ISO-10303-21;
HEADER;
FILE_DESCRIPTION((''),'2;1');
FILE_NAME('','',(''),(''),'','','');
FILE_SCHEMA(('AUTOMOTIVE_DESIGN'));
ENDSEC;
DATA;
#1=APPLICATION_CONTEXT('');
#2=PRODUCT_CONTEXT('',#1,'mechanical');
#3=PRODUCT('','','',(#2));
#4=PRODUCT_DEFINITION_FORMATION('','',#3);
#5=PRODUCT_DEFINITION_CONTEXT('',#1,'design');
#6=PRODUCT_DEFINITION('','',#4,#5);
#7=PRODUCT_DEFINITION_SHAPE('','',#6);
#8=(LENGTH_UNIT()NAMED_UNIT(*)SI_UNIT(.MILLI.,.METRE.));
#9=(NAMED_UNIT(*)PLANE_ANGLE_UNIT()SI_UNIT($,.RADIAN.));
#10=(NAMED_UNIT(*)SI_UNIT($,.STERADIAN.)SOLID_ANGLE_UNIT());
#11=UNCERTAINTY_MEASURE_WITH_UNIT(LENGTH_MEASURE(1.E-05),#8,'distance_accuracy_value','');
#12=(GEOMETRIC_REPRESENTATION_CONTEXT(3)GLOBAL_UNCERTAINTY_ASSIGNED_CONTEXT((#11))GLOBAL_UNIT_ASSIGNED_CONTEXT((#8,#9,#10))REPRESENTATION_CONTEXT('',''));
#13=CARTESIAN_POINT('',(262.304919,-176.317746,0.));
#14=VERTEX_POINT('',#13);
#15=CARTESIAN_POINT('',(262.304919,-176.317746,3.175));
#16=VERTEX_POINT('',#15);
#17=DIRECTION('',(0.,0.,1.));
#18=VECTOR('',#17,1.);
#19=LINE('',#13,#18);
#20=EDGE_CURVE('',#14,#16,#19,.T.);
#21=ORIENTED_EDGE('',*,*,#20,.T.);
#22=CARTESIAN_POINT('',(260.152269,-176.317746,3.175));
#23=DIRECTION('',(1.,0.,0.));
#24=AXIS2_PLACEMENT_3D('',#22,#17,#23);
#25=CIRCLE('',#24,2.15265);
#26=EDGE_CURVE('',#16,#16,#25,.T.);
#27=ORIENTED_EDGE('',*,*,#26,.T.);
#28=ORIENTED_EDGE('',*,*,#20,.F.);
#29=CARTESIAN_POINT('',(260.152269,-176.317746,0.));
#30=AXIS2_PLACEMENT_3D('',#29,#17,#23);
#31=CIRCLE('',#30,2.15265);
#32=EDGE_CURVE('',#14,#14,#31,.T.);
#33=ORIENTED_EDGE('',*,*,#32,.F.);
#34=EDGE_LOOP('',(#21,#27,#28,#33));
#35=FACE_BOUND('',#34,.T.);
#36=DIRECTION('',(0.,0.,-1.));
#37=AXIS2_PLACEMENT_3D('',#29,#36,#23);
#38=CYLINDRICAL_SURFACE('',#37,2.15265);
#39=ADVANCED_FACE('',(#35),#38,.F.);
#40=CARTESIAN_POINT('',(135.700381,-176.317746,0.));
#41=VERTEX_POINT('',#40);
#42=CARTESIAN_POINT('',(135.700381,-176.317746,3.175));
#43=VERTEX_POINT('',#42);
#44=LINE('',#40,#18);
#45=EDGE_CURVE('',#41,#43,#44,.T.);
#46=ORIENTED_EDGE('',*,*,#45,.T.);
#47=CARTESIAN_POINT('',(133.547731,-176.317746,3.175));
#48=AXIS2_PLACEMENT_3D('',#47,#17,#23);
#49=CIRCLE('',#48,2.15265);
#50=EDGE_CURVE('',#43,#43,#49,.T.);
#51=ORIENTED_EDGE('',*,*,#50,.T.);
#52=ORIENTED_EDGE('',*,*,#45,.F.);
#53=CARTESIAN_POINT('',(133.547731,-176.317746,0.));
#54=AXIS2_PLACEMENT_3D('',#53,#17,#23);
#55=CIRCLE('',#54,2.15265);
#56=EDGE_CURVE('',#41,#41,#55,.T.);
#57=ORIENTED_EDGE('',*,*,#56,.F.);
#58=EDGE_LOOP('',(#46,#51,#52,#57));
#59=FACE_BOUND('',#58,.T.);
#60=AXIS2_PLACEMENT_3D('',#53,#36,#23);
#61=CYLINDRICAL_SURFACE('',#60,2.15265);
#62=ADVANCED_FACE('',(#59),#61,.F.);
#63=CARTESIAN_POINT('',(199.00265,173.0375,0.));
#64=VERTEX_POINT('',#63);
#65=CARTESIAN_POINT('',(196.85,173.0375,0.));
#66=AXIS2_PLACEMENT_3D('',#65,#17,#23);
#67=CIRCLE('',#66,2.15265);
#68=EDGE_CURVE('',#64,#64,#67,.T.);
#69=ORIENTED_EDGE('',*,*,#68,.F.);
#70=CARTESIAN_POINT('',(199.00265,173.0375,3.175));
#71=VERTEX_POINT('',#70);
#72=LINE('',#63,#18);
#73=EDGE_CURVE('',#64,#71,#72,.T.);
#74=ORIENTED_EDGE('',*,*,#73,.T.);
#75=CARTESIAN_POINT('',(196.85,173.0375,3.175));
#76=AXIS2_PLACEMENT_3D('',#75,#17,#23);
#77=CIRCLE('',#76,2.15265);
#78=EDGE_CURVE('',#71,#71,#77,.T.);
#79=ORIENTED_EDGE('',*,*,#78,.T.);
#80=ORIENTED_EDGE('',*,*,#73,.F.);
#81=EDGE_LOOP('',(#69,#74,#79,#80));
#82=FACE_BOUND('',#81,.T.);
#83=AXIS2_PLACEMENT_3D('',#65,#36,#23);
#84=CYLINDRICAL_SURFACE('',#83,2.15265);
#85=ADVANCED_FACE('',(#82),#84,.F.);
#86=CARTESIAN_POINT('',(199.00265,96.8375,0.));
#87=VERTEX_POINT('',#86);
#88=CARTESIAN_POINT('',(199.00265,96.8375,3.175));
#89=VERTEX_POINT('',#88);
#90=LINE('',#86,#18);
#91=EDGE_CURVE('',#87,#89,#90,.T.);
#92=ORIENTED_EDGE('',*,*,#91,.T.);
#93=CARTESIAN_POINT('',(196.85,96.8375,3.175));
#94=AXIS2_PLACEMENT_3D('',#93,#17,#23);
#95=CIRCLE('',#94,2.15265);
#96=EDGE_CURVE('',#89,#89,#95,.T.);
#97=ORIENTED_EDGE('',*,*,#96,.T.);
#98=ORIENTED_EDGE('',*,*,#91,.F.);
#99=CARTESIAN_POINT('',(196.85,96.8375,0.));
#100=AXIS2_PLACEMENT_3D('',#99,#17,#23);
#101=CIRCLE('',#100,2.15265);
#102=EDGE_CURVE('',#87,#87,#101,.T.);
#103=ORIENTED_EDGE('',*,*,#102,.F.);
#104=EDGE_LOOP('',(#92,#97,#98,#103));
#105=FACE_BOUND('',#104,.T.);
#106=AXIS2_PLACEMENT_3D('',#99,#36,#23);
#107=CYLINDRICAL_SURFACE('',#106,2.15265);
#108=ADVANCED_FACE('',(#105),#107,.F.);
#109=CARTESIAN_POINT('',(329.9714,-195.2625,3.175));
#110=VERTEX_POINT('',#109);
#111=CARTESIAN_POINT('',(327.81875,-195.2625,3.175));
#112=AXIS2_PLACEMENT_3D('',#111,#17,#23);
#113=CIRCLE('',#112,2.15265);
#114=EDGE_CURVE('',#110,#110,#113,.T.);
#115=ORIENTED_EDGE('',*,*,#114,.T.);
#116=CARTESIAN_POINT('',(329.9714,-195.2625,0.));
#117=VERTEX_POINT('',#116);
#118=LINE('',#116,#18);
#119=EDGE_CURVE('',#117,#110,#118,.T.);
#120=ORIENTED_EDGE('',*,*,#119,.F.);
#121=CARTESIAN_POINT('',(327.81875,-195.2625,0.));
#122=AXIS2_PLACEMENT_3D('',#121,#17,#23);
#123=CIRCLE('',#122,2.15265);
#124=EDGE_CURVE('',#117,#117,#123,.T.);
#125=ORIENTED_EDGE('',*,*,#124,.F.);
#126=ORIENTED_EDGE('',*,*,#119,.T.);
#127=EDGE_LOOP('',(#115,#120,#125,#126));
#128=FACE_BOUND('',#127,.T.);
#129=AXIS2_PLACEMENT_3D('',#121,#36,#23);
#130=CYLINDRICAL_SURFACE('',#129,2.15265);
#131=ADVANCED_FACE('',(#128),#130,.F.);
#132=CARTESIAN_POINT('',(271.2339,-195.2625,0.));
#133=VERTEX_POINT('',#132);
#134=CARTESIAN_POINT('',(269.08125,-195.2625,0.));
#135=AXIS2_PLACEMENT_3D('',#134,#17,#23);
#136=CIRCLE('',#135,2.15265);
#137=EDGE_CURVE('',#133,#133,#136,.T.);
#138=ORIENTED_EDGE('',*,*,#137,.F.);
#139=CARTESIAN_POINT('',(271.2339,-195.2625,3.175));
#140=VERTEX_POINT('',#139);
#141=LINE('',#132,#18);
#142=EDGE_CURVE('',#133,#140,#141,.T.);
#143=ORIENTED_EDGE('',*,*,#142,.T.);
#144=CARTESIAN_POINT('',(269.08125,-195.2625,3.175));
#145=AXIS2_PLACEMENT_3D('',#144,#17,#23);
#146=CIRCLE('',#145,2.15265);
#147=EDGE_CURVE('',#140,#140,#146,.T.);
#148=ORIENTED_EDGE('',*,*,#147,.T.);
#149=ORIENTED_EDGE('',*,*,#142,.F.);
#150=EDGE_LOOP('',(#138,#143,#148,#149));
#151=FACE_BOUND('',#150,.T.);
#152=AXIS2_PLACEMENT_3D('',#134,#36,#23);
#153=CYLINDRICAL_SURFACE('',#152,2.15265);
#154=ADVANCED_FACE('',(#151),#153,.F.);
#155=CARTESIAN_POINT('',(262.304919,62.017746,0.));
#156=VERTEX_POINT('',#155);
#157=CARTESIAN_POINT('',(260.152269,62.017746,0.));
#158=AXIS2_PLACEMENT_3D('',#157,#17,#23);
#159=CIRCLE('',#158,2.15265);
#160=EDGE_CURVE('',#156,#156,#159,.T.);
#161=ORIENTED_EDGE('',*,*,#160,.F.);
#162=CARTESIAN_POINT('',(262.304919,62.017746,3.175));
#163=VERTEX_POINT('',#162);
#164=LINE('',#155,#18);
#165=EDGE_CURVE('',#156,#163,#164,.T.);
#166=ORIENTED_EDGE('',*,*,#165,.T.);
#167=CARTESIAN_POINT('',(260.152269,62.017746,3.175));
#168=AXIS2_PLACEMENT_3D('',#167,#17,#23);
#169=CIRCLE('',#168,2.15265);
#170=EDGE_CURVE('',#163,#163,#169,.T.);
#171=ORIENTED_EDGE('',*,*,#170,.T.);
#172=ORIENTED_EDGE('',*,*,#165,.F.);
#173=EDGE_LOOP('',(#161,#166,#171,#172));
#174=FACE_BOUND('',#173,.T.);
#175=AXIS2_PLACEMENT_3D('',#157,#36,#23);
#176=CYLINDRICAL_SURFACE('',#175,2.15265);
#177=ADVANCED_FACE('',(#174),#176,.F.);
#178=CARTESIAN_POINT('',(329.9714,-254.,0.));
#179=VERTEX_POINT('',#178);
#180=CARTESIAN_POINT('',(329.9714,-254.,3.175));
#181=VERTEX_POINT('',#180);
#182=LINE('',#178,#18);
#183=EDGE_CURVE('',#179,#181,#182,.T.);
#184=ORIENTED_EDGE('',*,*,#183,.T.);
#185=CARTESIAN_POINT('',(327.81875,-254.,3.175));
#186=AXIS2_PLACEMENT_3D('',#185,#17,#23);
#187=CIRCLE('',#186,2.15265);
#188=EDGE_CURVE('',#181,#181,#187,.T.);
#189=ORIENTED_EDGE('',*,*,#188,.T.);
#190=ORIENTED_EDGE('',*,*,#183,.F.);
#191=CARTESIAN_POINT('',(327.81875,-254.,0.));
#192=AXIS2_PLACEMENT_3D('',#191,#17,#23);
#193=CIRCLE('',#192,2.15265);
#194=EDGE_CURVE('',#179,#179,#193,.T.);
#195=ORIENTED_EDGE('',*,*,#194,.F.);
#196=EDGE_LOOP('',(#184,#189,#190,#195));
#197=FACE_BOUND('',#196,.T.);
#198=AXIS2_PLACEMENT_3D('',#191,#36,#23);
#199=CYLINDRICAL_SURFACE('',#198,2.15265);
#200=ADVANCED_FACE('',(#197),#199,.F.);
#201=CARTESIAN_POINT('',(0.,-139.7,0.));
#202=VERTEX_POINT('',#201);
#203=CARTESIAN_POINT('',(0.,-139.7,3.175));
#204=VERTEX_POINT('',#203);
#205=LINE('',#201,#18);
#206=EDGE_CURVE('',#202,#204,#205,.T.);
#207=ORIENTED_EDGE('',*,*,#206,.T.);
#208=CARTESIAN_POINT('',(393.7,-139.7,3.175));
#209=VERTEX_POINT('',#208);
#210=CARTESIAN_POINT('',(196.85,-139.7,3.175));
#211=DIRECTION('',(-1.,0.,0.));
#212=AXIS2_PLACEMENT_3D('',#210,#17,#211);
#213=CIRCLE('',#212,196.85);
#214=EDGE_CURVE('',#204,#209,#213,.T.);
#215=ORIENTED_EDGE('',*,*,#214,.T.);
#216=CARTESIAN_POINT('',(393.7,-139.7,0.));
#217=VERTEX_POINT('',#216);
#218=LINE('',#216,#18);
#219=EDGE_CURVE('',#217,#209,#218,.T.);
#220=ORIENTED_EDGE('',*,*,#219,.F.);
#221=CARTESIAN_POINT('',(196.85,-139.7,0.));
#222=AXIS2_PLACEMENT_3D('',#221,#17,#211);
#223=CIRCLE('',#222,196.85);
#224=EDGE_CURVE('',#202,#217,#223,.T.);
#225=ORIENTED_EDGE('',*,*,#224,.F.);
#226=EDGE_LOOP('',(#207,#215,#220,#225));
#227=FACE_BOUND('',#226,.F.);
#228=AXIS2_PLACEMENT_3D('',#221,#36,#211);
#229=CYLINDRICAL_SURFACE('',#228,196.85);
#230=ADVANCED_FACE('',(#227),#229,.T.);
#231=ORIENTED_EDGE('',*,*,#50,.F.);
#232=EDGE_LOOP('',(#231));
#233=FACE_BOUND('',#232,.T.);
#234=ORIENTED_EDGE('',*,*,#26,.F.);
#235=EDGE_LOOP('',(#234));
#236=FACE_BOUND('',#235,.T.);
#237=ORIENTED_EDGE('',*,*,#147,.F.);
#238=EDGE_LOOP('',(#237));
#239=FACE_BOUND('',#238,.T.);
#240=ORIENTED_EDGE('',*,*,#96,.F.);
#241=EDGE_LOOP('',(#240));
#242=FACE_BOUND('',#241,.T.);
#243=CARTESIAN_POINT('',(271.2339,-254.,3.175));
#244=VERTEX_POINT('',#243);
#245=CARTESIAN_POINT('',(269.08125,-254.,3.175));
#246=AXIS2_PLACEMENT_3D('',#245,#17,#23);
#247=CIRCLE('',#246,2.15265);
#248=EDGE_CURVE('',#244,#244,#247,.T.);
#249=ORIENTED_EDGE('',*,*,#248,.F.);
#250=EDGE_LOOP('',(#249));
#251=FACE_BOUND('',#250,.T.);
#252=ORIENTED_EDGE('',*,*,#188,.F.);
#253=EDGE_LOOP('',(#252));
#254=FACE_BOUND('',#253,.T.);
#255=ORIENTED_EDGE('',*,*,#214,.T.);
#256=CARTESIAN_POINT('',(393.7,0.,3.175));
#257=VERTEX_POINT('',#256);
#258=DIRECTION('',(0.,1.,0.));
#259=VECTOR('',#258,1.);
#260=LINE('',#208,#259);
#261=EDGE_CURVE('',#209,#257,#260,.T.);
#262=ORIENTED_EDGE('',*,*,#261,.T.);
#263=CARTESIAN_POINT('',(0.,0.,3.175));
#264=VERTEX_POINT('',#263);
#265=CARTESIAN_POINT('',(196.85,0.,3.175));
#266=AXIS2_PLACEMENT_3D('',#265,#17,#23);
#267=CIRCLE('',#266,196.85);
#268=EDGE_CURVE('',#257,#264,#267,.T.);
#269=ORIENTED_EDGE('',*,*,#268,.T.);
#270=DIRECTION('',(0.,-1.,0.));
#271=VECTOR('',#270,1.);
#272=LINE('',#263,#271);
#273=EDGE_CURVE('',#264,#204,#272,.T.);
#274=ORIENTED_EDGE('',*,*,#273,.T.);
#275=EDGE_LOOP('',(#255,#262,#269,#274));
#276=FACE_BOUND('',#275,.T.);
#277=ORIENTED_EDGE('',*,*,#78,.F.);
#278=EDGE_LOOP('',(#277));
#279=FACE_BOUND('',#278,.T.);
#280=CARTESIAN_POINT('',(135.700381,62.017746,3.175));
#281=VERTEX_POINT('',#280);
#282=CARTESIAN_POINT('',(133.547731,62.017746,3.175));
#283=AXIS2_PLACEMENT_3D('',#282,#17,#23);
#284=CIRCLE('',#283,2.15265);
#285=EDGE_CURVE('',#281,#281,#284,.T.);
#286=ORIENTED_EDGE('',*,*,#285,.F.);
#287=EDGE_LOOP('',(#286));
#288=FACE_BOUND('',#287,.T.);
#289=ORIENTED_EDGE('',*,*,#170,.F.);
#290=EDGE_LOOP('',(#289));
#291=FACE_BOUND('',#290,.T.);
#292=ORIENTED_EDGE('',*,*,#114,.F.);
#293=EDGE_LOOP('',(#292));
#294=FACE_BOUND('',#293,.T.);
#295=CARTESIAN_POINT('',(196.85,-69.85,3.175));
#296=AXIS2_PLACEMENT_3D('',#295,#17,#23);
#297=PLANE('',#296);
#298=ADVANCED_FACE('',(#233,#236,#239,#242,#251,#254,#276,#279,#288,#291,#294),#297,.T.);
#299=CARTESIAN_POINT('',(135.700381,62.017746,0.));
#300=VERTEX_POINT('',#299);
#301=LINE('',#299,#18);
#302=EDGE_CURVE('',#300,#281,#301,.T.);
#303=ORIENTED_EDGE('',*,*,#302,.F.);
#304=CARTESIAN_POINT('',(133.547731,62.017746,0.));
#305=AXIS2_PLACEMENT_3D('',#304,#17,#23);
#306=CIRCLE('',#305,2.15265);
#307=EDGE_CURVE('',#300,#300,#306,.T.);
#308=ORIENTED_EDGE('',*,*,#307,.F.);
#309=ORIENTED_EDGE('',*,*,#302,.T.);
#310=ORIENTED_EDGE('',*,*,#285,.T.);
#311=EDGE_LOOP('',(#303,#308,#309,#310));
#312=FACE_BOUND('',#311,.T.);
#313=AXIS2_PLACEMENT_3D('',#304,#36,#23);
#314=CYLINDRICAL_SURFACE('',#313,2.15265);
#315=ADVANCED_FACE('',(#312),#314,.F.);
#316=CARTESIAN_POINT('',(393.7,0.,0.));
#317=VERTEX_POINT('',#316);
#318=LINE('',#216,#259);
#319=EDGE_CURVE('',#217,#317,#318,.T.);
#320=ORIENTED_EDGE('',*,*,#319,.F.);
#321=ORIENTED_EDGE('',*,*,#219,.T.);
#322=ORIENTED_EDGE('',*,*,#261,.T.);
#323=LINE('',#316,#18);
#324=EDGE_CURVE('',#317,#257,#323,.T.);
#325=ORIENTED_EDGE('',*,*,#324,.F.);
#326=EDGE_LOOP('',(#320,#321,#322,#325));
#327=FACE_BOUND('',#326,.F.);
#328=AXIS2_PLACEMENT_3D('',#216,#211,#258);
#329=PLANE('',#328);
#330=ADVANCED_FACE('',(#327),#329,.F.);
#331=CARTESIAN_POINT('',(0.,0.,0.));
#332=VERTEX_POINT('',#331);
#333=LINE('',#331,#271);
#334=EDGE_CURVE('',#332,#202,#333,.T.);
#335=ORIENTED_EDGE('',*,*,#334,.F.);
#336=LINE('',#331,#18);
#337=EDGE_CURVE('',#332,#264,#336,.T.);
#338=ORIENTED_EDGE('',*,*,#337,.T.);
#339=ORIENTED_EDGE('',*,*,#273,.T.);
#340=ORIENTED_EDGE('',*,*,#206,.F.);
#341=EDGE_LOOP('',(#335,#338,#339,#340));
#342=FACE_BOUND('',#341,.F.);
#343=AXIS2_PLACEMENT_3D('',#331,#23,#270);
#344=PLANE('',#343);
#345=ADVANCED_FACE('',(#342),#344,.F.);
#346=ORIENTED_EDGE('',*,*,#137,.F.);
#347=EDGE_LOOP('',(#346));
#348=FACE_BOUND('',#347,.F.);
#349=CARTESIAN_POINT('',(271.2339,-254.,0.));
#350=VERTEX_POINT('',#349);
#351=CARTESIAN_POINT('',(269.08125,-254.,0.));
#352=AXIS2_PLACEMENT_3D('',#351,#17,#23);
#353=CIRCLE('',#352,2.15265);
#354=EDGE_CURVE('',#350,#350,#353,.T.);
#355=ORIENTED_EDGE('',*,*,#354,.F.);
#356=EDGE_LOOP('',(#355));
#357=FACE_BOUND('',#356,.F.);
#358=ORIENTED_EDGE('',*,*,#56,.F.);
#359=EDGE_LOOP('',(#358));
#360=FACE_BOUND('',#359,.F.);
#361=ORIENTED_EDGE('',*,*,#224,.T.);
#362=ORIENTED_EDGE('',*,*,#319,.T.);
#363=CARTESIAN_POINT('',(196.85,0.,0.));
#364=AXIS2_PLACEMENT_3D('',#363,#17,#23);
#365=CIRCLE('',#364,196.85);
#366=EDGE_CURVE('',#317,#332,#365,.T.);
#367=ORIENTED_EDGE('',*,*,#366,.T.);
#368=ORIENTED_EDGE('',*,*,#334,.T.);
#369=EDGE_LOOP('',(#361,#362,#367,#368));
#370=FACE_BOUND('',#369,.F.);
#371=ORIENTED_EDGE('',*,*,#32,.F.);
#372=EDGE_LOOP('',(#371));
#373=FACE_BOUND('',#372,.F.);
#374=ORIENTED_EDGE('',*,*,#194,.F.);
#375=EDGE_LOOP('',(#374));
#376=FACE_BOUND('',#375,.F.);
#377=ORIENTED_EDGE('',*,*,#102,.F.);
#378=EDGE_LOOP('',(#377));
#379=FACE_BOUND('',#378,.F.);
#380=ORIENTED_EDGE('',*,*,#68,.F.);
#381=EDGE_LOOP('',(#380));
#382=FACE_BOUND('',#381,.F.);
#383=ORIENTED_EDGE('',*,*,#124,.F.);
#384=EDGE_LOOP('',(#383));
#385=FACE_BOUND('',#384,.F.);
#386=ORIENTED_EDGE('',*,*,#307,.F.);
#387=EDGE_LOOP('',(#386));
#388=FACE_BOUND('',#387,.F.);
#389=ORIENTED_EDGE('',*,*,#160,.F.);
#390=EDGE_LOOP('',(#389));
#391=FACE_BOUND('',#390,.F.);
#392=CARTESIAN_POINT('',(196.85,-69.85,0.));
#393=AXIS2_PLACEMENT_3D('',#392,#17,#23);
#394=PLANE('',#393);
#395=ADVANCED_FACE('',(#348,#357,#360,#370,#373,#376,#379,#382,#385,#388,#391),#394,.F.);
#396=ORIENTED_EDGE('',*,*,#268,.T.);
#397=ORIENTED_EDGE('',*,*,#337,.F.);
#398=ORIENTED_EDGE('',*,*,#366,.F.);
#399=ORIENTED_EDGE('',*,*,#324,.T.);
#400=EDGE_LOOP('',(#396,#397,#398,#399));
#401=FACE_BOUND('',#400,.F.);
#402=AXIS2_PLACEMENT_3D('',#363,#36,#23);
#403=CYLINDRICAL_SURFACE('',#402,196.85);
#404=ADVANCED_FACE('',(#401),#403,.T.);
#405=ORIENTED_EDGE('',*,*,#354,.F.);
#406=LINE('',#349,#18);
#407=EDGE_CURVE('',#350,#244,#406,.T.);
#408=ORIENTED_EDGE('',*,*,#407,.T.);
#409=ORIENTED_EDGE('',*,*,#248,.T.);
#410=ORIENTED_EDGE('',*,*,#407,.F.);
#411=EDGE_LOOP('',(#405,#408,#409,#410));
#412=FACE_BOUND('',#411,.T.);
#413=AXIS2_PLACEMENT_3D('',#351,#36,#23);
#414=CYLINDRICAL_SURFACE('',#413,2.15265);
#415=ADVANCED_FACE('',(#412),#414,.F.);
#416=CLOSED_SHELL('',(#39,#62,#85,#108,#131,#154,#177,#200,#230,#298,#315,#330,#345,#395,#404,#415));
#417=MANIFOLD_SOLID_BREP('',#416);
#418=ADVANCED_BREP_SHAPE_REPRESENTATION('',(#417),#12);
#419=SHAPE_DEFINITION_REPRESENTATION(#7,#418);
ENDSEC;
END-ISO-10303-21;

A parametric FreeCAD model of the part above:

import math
import FreeCAD as App
import Part
import Sketcher

V = App.Vector
Q = App.Units.Quantity

doc = App.newDocument("Part")
body = doc.addObject("PartDesign::Body", "Body")

# Sketch on XY plane
sketch1 = doc.addObject("Sketcher::SketchObject", "Sketch")
body.addObject(sketch1)
sketch1.AttachmentSupport = (doc.XY_Plane, [""])
sketch1.MapMode = "FlatFace"
sketch1.addGeometry([
    Part.ArcOfCircle(Part.Circle(V(196.8, 0, 0), V(0, 0, 1), 196.8), math.radians(0), math.radians(180)),  # 0
    Part.LineSegment(V(0, 0, 0), V(0, -139.7, 0)),  # 1
    Part.ArcOfCircle(Part.Circle(V(196.8, -139.7, 0), V(0, 0, 1), 196.8), math.radians(180), math.radians(360)),  # 2
    Part.LineSegment(V(393.7, -139.7, 0), V(393.7, 0, 0)),  # 3
    Part.Circle(V(133.5, -176.3, 0), V(0, 0, 1), 2.2),  # 4
    Part.Circle(V(269.1, -254, 0), V(0, 0, 1), 2.2),  # 5
    Part.Circle(V(260.2, -176.3, 0), V(0, 0, 1), 2.2),  # 6
    Part.Circle(V(269.1, -195.3, 0), V(0, 0, 1), 2.2),  # 7
    Part.Circle(V(327.8, -254, 0), V(0, 0, 1), 2.2),  # 8
    Part.Circle(V(327.8, -195.3, 0), V(0, 0, 1), 2.2),  # 9
    Part.Circle(V(133.5, 62, 0), V(0, 0, 1), 2.2),  # 10
    Part.Circle(V(196.8, 96.8, 0), V(0, 0, 1), 2.2),  # 11
    Part.Circle(V(196.8, 173, 0), V(0, 0, 1), 2.2),  # 12
    Part.Circle(V(260.2, 62, 0), V(0, 0, 1), 2.2),  # 13
], False)
sketch1.addConstraint([
    Sketcher.Constraint("Tangent", 0, 2, 1, 1),
    Sketcher.Constraint("Tangent", 1, 2, 2, 1),
    Sketcher.Constraint("Tangent", 2, 2, 3, 1),
    Sketcher.Constraint("Tangent", 3, 2, 0, 1),
    Sketcher.Constraint("Vertical", 1),
    Sketcher.Constraint("Vertical", 3),
    Sketcher.Constraint("Coincident", 0, 2, -1, 1),
    Sketcher.Constraint("Equal", 4, 5),
    Sketcher.Constraint("Equal", 5, 6),
    Sketcher.Constraint("Equal", 6, 7),
    Sketcher.Constraint("Equal", 7, 8),
    Sketcher.Constraint("Equal", 8, 9),
    Sketcher.Constraint("Equal", 9, 10),
    Sketcher.Constraint("Equal", 10, 11),
    Sketcher.Constraint("Equal", 11, 12),
    Sketcher.Constraint("Equal", 12, 13),
    Sketcher.Constraint("Horizontal", 4, 3, 6, 3),
    Sketcher.Constraint("Horizontal", 5, 3, 8, 3),
    Sketcher.Constraint("Horizontal", 7, 3, 9, 3),
    Sketcher.Constraint("Horizontal", 10, 3, 13, 3),
    Sketcher.Constraint("Vertical", 5, 3, 7, 3),
    Sketcher.Constraint("Vertical", 8, 3, 9, 3),
    Sketcher.Constraint("Vertical", 4, 3, 10, 3),
    Sketcher.Constraint("Vertical", 2, 3, 11, 3),
    Sketcher.Constraint("Vertical", 11, 3, 12, 3),
    Sketcher.Constraint("Vertical", 6, 3, 13, 3),
    Sketcher.Constraint("Radius", 0, Q("7.75 in")),
    Sketcher.Constraint("DistanceY", 1, 2, 1, 1, Q("5.5 in")),
    Sketcher.Constraint("DistanceY", 5, 3, -1, 1, Q("10 in")),
    Sketcher.Constraint("DistanceY", 11, 3, 12, 3, Q("3 in")),
    Sketcher.Constraint("Diameter", 4, Q("0.1695 in")),
    Sketcher.Constraint("DistanceX", -1, 1, 5, 3, Q("10.59375 in")),
    Sketcher.Constraint("DistanceY", 7, 3, -1, 1, Q("7.6875 in")),
    Sketcher.Constraint("DistanceX", -1, 1, 8, 3, Q("12.90625 in")),
    Sketcher.Constraint("DistanceY", -1, 1, 11, 3, Q("3.8125 in")),
    Sketcher.Constraint("DistanceX", -1, 1, 4, 3, 133.547731),
    Sketcher.Constraint("DistanceX", -1, 1, 6, 3, 260.152269),
    Sketcher.Constraint("DistanceY", 4, 3, 10, 3, 238.335492),
    Sketcher.Constraint("DistanceY", 4, 3, -1, 1, 176.317746),
])
pad1 = doc.addObject("PartDesign::Pad", "Pad")
body.addObject(pad1)
pad1.Profile = sketch1
pad1.Length = Q("0.125 in")

doc.recompute()
